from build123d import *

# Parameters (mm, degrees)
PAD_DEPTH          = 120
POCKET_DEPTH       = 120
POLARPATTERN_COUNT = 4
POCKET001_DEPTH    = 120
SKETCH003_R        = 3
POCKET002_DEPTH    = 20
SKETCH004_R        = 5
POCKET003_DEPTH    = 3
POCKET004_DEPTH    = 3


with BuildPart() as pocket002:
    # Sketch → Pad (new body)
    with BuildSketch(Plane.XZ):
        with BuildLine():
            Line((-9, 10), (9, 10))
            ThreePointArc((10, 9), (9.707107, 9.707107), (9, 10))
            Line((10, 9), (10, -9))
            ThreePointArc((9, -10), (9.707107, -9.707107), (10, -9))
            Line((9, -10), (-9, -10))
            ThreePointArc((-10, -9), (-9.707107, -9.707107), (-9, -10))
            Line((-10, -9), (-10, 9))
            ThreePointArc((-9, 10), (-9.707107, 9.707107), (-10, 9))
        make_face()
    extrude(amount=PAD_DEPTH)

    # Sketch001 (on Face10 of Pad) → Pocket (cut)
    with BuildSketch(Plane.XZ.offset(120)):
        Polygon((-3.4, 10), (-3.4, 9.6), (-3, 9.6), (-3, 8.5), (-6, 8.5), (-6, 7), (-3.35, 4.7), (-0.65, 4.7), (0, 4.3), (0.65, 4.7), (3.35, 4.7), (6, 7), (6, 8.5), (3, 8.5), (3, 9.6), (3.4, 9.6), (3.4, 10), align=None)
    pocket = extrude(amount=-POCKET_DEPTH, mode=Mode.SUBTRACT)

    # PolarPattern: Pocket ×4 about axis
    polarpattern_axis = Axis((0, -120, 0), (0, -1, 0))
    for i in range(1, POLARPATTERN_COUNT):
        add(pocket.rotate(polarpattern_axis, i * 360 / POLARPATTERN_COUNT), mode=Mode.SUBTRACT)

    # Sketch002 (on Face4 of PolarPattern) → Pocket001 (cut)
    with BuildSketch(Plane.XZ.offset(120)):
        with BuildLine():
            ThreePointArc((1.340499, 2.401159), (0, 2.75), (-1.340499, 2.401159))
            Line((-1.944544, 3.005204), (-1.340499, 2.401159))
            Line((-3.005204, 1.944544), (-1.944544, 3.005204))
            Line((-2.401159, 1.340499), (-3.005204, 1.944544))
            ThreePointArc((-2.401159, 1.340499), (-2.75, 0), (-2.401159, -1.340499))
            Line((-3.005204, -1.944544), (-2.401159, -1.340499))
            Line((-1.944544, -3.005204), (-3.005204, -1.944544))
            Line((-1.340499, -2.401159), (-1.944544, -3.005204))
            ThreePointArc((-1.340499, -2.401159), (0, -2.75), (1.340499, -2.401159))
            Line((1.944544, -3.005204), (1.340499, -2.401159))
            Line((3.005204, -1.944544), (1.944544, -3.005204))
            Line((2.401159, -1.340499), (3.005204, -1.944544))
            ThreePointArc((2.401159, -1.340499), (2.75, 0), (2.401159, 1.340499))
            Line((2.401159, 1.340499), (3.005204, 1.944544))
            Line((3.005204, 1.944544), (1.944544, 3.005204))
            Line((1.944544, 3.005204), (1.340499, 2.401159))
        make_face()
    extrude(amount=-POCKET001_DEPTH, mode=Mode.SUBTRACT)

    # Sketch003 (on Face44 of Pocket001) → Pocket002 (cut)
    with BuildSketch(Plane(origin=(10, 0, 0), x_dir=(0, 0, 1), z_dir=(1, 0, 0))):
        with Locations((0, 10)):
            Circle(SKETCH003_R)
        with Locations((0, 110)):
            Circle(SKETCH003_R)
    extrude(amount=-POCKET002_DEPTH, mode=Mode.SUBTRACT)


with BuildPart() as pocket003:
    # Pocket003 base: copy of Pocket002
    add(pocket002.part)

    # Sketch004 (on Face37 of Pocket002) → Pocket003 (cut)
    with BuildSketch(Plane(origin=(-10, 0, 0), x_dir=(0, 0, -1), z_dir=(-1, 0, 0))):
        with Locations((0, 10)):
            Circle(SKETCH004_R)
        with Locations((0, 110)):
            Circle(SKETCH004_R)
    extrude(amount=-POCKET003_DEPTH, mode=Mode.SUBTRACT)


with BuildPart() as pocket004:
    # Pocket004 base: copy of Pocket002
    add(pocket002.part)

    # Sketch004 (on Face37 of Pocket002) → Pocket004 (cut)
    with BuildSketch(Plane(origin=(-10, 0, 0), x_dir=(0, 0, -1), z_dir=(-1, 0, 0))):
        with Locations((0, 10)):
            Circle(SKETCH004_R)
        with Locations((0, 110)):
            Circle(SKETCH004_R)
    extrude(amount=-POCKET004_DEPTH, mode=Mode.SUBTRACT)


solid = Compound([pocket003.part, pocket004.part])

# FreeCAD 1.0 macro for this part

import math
import FreeCAD as App
import Part
import Sketcher


def add_polygon(sketch, points):
    """Adds a closed chain of lines whose ends are joined by coincident constraints."""
    first, n = sketch.GeometryCount, len(points)
    for a, b in zip(points, points[1:] + points[:1]):
        sketch.addGeometry(Part.LineSegment(App.Vector(*a, 0), App.Vector(*b, 0)), False)
    for i in range(n):
        sketch.addConstraint(Sketcher.Constraint("Coincident", first + i, 2, first + (i + 1) % n, 1))

doc = App.newDocument("Part")
params = doc.addObject("Spreadsheet::Sheet", "Params")
for row, (alias, value) in enumerate([
    ("sketch1_radius", "0.999999 mm"),
    ("sketch1_width", "18 mm"),
    ("pad1_length", "120 mm"),
    ("sketch2_width", "3 mm"),
    ("sketch2_width2", "0.4 mm"),
    ("sketch2_width3", "2.7 mm"),
    ("sketch2_width4", "6.8 mm"),
    ("sketch2_height", "1.1 mm"),
    ("pocket1_length", "120 mm"),
    ("sketch3_length", "1.5 mm"),
    ("pocket2_length", "120 mm"),
    ("sketch4_diameter", "6 mm"),
    ("pocket3_length", "20 mm"),
    ("sketch5_diameter", "10 mm"),
    ("pocket4_length", "3 mm"),
    ("sketch6_diameter", "10 mm"),
    ("pocket5_length", "3 mm"),
], start=1):
    params.set(f"A{row}", alias)
    params.set(f"B{row}", "=" + value)
    params.setAlias(f"B{row}", alias)

body = doc.addObject("PartDesign::Body", "Body")

# Sketch on XZ plane
sketch1 = doc.addObject("Sketcher::SketchObject", "Sketch")
body.addObject(sketch1)
sketch1.AttachmentSupport = (doc.XZ_Plane, [""])
sketch1.MapMode = "FlatFace"
sketch1.addGeometry([
    Part.LineSegment(App.Vector(9, 10, 0), App.Vector(-9, 10, 0)),  # 0
    Part.ArcOfCircle(Part.Circle(App.Vector(-9, 9, 0), App.Vector(0, 0, 1), 1), math.radians(90), math.radians(180)),  # 1
    Part.LineSegment(App.Vector(-10, 9, 0), App.Vector(-10, -9, 0)),  # 2
    Part.ArcOfCircle(Part.Circle(App.Vector(-9, -9, 0), App.Vector(0, 0, 1), 1), math.radians(180), math.radians(270)),  # 3
    Part.LineSegment(App.Vector(-9, -10, 0), App.Vector(9, -10, 0)),  # 4
    Part.ArcOfCircle(Part.Circle(App.Vector(9, -9, 0), App.Vector(0, 0, 1), 1), math.radians(-90), math.radians(0)),  # 5
    Part.LineSegment(App.Vector(10, -9, 0), App.Vector(10, 9, 0)),  # 6
    Part.ArcOfCircle(Part.Circle(App.Vector(9, 9, 0), App.Vector(0, 0, 1), 1), math.radians(0), math.radians(90)),  # 7
], False)
sketch1.addConstraint([
    Sketcher.Constraint("Tangent", 0, 2, 1, 1),
    Sketcher.Constraint("Tangent", 1, 2, 2, 1),
    Sketcher.Constraint("Tangent", 2, 2, 3, 1),
    Sketcher.Constraint("Tangent", 3, 2, 4, 1),
    Sketcher.Constraint("Tangent", 4, 2, 5, 1),
    Sketcher.Constraint("Tangent", 5, 2, 6, 1),
    Sketcher.Constraint("Tangent", 6, 2, 7, 1),
    Sketcher.Constraint("Tangent", 7, 2, 0, 1),
    Sketcher.Constraint("Horizontal", 0),
    Sketcher.Constraint("Vertical", 2),
    Sketcher.Constraint("Horizontal", 4),
    Sketcher.Constraint("Vertical", 6),
    Sketcher.Constraint("Equal", 1, 3),
    Sketcher.Constraint("Equal", 3, 5),
    Sketcher.Constraint("Equal", 5, 7),
    Sketcher.Constraint("Symmetric", 1, 3, 5, 3, -1, 1),
    Sketcher.Constraint("Equal", 4, 2),
    Sketcher.Constraint("Radius", 1, 0.999999),
    Sketcher.Constraint("DistanceX", 0, 2, 0, 1, 18.0),
])
sketch1.setExpression("Constraints[17]", "Params.sketch1_radius")
sketch1.setExpression("Constraints[18]", "Params.sketch1_width")
pad1 = doc.addObject("PartDesign::Pad", "Pad")
body.addObject(pad1)
pad1.Profile = sketch1
pad1.setExpression("Length", "Params.pad1_length")

# Sketch on XZ plane
sketch2 = doc.addObject("Sketcher::SketchObject", "Sketch001")
body.addObject(sketch2)
sketch2.AttachmentSupport = (doc.XZ_Plane, [""])
sketch2.MapMode = "FlatFace"
sketch2.AttachmentOffset = App.Placement(App.Vector(0, 0, 120), App.Rotation())
add_polygon(sketch2, [(-3.4, 10), (-3.4, 9.6), (-3, 9.6), (-3, 8.5), (-6, 8.5), (-6, 7), (-3.35, 4.7), (-0.65, 4.7), (0, 4.3), (0.65, 4.7), (3.35, 4.7), (6, 7), (6, 8.5), (3, 8.5), (3, 9.6), (3.4, 9.6), (3.4, 10)])  # lines 0-16
sketch2.addConstraint([
    Sketcher.Constraint("Vertical", 0),
    Sketcher.Constraint("Horizontal", 1),
    Sketcher.Constraint("Vertical", 2),
    Sketcher.Constraint("Horizontal", 3),
    Sketcher.Constraint("Vertical", 4),
    Sketcher.Constraint("Horizontal", 6),
    Sketcher.Constraint("Horizontal", 9),
    Sketcher.Constraint("Vertical", 11),
    Sketcher.Constraint("Horizontal", 12),
    Sketcher.Constraint("Vertical", 13),
    Sketcher.Constraint("Horizontal", 14),
    Sketcher.Constraint("Vertical", 15),
    Sketcher.Constraint("Horizontal", 16),
    Sketcher.Constraint("Symmetric", 6, 2, 8, 2, -2),
    Sketcher.Constraint("Symmetric", 4, 2, 10, 2, -2),
    Sketcher.Constraint("Symmetric", 2, 2, 12, 2, -2),
    Sketcher.Constraint("Symmetric", 0, 2, 14, 2, -2),
    Sketcher.Constraint("PointOnObject", 7, 2, -2),
    Sketcher.Constraint("Equal", 6, 9),
    Sketcher.Constraint("Equal", 14, 0),
    Sketcher.Constraint("DistanceX", 3, 2, 3, 1, 3.0),
    Sketcher.Constraint("DistanceX", 1, 1, 1, 2, 0.4),
    Sketcher.Constraint("DistanceX", 6, 1, 6, 2, 2.7),
    Sketcher.Constraint("DistanceX", 16, 2, 16, 1, 6.8),
    Sketcher.Constraint("DistanceY", 2, 2, 2, 1, 1.1),
    Sketcher.Constraint("DistanceY", 4, 2, 4, 1, 1.5),
    Sketcher.Constraint("DistanceY", -1, 1, 4, 2, 7.0),
    Sketcher.Constraint("DistanceX", 5, 2, 8, 2, 4.0),
    Sketcher.Constraint("DistanceY", -1, 1, 5, 2, 4.7),
    Sketcher.Constraint("DistanceY", -1, 1, 7, 2, 4.3),
])
sketch2.setExpression("Constraints[37]", "Params.sketch2_width")
sketch2.setExpression("Constraints[38]", "Params.sketch2_width2")
sketch2.setExpression("Constraints[39]", "Params.sketch2_width3")
sketch2.setExpression("Constraints[40]", "Params.sketch2_width4")
sketch2.setExpression("Constraints[41]", "Params.sketch2_height")
pocket1 = doc.addObject("PartDesign::Pocket", "Pocket")
body.addObject(pocket1)
pocket1.Profile = sketch2
pocket1.setExpression("Length", "Params.pocket1_length")
doc.recompute()

polarpattern = doc.addObject("PartDesign::PolarPattern", "PolarPattern")
body.addObject(polarpattern)
polarpattern.Originals = [pocket1]
polarpattern.Axis = (doc.Y_Axis, [""])
polarpattern.Angle = 360
polarpattern.Occurrences = 4
body.Tip = polarpattern

# Sketch on XZ plane
sketch3 = doc.addObject("Sketcher::SketchObject", "Sketch002")
body.addObject(sketch3)
sketch3.AttachmentSupport = (doc.XZ_Plane, [""])
sketch3.MapMode = "FlatFace"
sketch3.AttachmentOffset = App.Placement(App.Vector(0, 0, 120), App.Rotation())
sketch3.addGeometry([
    Part.ArcOfCircle(Part.Circle(App.Vector(0, 0, 0), App.Vector(0, 0, 1), 2.8), math.radians(61), math.radians(119)),  # 0
    Part.LineSegment(App.Vector(-1.3, 2.4, 0), App.Vector(-1.9, 3, 0)),  # 1
    Part.LineSegment(App.Vector(-1.9, 3, 0), App.Vector(-3, 1.9, 0)),  # 2
    Part.LineSegment(App.Vector(-3, 1.9, 0), App.Vector(-2.4, 1.3, 0)),  # 3
    Part.ArcOfCircle(Part.Circle(App.Vector(0, 0, 0), App.Vector(0, 0, 1), 2.8), math.radians(151), math.radians(209)),  # 4
    Part.LineSegment(App.Vector(-2.4, -1.3, 0), App.Vector(-3, -1.9, 0)),  # 5
    Part.LineSegment(App.Vector(-3, -1.9, 0), App.Vector(-1.9, -3, 0)),  # 6
    Part.LineSegment(App.Vector(-1.9, -3, 0), App.Vector(-1.3, -2.4, 0)),  # 7
    Part.ArcOfCircle(Part.Circle(App.Vector(0, 0, 0), App.Vector(0, 0, 1), 2.8), math.radians(-119), math.radians(-61)),  # 8
    Part.LineSegment(App.Vector(1.3, -2.4, 0), App.Vector(1.9, -3, 0)),  # 9
    Part.LineSegment(App.Vector(1.9, -3, 0), App.Vector(3, -1.9, 0)),  # 10
    Part.LineSegment(App.Vector(3, -1.9, 0), App.Vector(2.4, -1.3, 0)),  # 11
    Part.ArcOfCircle(Part.Circle(App.Vector(0, 0, 0), App.Vector(0, 0, 1), 2.8), math.radians(-29), math.radians(29)),  # 12
    Part.LineSegment(App.Vector(2.4, 1.3, 0), App.Vector(3, 1.9, 0)),  # 13
    Part.LineSegment(App.Vector(3, 1.9, 0), App.Vector(1.9, 3, 0)),  # 14
    Part.LineSegment(App.Vector(1.9, 3, 0), App.Vector(1.3, 2.4, 0)),  # 15
], False)
sketch3.addConstraint([
    Sketcher.Constraint("Coincident", 0, 2, 1, 1),
    Sketcher.Constraint("Coincident", 1, 2, 2, 1),
    Sketcher.Constraint("Coincident", 2, 2, 3, 1),
    Sketcher.Constraint("Coincident", 3, 2, 4, 1),
    Sketcher.Constraint("Coincident", 4, 2, 5, 1),
    Sketcher.Constraint("Coincident", 5, 2, 6, 1),
    Sketcher.Constraint("Coincident", 6, 2, 7, 1),
    Sketcher.Constraint("Coincident", 7, 2, 8, 1),
    Sketcher.Constraint("Coincident", 8, 2, 9, 1),
    Sketcher.Constraint("Coincident", 9, 2, 10, 1),
    Sketcher.Constraint("Coincident", 10, 2, 11, 1),
    Sketcher.Constraint("Coincident", 11, 2, 12, 1),
    Sketcher.Constraint("Coincident", 12, 2, 13, 1),
    Sketcher.Constraint("Coincident", 13, 2, 14, 1),
    Sketcher.Constraint("Coincident", 14, 2, 15, 1),
    Sketcher.Constraint("Coincident", 15, 2, 0, 1),
    Sketcher.Constraint("Coincident", 0, 3, -1, 1),
    Sketcher.Constraint("Coincident", 4, 3, -1, 1),
    Sketcher.Constraint("Coincident", 8, 3, -1, 1),
    Sketcher.Constraint("Coincident", 12, 3, -1, 1),
    Sketcher.Constraint("Equal", 0, 4),
    Sketcher.Constraint("Equal", 4, 8),
    Sketcher.Constraint("Equal", 8, 12),
    Sketcher.Constraint("Symmetric", 1, 2, 9, 2, -1, 1),
    Sketcher.Constraint("Symmetric", 2, 2, 10, 2, -1, 1),
    Sketcher.Constraint("Symmetric", 5, 2, 13, 2, -1, 1),
    Sketcher.Constraint("Symmetric", 6, 2, 14, 2, -1, 1),
    Sketcher.Constraint("Symmetric", 6, 2, 9, 2, -2),
    Sketcher.Constraint("Symmetric", 5, 2, 10, 2, -2),
    Sketcher.Constraint("Perpendicular", 1, 2),
    Sketcher.Constraint("Perpendicular", 2, 3),
    Sketcher.Constraint("Perpendicular", 3, 5),
    Sketcher.Constraint("Perpendicular", 5, 6),
    Sketcher.Constraint("Perpendicular", 6, 7),
    Sketcher.Constraint("Perpendicular", 7, 9),
    Sketcher.Constraint("Perpendicular", 10, 11),
    Sketcher.Constraint("Perpendicular", 11, 13),
    Sketcher.Constraint("Perpendicular", 14, 15),
    Sketcher.Constraint("Equal", 1, 3),
    Sketcher.Constraint("Distance", 2, 1.5),
    Sketcher.Constraint("Radius", 0, 2.750003),
    Sketcher.Constraint("DistanceY", 8, 3, 1, 2, 3.005201),
])
sketch3.setExpression("Constraints[39]", "Params.sketch3_length")
pocket2 = doc.addObject("PartDesign::Pocket", "Pocket001")
body.addObject(pocket2)
pocket2.Profile = sketch3
pocket2.setExpression("Length", "Params.pocket2_length")

# Sketch on YZ plane
sketch4 = doc.addObject("Sketcher::SketchObject", "Sketch003")
body.addObject(sketch4)
sketch4.AttachmentSupport = (doc.YZ_Plane, [""])
sketch4.MapMode = "FlatFace"
sketch4.AttachmentOffset = App.Placement(App.Vector(0, 0, 10), App.Rotation())
sketch4.addGeometry([
    Part.Circle(App.Vector(-10, 0, 0), App.Vector(0, 0, 1), 3),
    Part.Circle(App.Vector(-110, 0, 0), App.Vector(0, 0, 1), 3),
], False)
sketch4.addConstraint([
    Sketcher.Constraint("Equal", 0, 1),
    Sketcher.Constraint("PointOnObject", 0, 3, -1),
    Sketcher.Constraint("PointOnObject", 1, 3, -1),
    Sketcher.Constraint("Diameter", 0, 6.0),
    Sketcher.Constraint("DistanceX", 0, 3, -1, 1, 10.0),
    Sketcher.Constraint("DistanceX", 1, 3, -1, 1, 110.0),
])
sketch4.setExpression("Constraints[3]", "Params.sketch4_diameter")
pocket3 = doc.addObject("PartDesign::Pocket", "Pocket002")
body.addObject(pocket3)
pocket3.Profile = sketch4
pocket3.setExpression("Length", "Params.pocket3_length")
body2 = doc.addObject("PartDesign::Body", "Body001")
doc.recompute()

body2.BaseFeature = body
doc.recompute()

# Sketch on YZ plane
sketch5 = doc.addObject("Sketcher::SketchObject", "Sketch004")
body2.addObject(sketch5)
sketch5.AttachmentSupport = (doc.getObject("YZ_Plane001"), [""])
sketch5.MapMode = "FlatFace"
sketch5.AttachmentOffset = App.Placement(App.Vector(0, 0, -10), App.Rotation())
sketch5.addGeometry([
    Part.Circle(App.Vector(-10, 0, 0), App.Vector(0, 0, 1), 5),
    Part.Circle(App.Vector(-110, 0, 0), App.Vector(0, 0, 1), 5),
], False)
sketch5.addConstraint([
    Sketcher.Constraint("Equal", 0, 1),
    Sketcher.Constraint("PointOnObject", 0, 3, -1),
    Sketcher.Constraint("PointOnObject", 1, 3, -1),
    Sketcher.Constraint("Diameter", 0, 10.0),
    Sketcher.Constraint("DistanceX", 0, 3, -1, 1, 10.0),
    Sketcher.Constraint("DistanceX", 1, 3, -1, 1, 110.0),
])
sketch5.setExpression("Constraints[3]", "Params.sketch5_diameter")
pocket4 = doc.addObject("PartDesign::Pocket", "Pocket003")
body2.addObject(pocket4)
pocket4.Profile = sketch5
pocket4.setExpression("Length", "Params.pocket4_length")
pocket4.Reversed = True

# Sketch on YZ plane
sketch6 = doc.addObject("Sketcher::SketchObject", "Sketch005")
body.addObject(sketch6)
sketch6.AttachmentSupport = (doc.YZ_Plane, [""])
sketch6.MapMode = "FlatFace"
sketch6.AttachmentOffset = App.Placement(App.Vector(0, 0, -10), App.Rotation())
sketch6.addGeometry([
    Part.Circle(App.Vector(-10, 0, 0), App.Vector(0, 0, 1), 5),
    Part.Circle(App.Vector(-110, 0, 0), App.Vector(0, 0, 1), 5),
], False)
sketch6.addConstraint([
    Sketcher.Constraint("Equal", 0, 1),
    Sketcher.Constraint("PointOnObject", 0, 3, -1),
    Sketcher.Constraint("PointOnObject", 1, 3, -1),
    Sketcher.Constraint("Diameter", 0, 10.0),
    Sketcher.Constraint("DistanceX", 0, 3, -1, 1, 10.0),
    Sketcher.Constraint("DistanceX", 1, 3, -1, 1, 110.0),
])
sketch6.setExpression("Constraints[3]", "Params.sketch6_diameter")
pocket5 = doc.addObject("PartDesign::Pocket", "Pocket004")
body.addObject(pocket5)
pocket5.Profile = sketch6
pocket5.setExpression("Length", "Params.pocket5_length")
pocket5.Reversed = True

doc.recompute()
